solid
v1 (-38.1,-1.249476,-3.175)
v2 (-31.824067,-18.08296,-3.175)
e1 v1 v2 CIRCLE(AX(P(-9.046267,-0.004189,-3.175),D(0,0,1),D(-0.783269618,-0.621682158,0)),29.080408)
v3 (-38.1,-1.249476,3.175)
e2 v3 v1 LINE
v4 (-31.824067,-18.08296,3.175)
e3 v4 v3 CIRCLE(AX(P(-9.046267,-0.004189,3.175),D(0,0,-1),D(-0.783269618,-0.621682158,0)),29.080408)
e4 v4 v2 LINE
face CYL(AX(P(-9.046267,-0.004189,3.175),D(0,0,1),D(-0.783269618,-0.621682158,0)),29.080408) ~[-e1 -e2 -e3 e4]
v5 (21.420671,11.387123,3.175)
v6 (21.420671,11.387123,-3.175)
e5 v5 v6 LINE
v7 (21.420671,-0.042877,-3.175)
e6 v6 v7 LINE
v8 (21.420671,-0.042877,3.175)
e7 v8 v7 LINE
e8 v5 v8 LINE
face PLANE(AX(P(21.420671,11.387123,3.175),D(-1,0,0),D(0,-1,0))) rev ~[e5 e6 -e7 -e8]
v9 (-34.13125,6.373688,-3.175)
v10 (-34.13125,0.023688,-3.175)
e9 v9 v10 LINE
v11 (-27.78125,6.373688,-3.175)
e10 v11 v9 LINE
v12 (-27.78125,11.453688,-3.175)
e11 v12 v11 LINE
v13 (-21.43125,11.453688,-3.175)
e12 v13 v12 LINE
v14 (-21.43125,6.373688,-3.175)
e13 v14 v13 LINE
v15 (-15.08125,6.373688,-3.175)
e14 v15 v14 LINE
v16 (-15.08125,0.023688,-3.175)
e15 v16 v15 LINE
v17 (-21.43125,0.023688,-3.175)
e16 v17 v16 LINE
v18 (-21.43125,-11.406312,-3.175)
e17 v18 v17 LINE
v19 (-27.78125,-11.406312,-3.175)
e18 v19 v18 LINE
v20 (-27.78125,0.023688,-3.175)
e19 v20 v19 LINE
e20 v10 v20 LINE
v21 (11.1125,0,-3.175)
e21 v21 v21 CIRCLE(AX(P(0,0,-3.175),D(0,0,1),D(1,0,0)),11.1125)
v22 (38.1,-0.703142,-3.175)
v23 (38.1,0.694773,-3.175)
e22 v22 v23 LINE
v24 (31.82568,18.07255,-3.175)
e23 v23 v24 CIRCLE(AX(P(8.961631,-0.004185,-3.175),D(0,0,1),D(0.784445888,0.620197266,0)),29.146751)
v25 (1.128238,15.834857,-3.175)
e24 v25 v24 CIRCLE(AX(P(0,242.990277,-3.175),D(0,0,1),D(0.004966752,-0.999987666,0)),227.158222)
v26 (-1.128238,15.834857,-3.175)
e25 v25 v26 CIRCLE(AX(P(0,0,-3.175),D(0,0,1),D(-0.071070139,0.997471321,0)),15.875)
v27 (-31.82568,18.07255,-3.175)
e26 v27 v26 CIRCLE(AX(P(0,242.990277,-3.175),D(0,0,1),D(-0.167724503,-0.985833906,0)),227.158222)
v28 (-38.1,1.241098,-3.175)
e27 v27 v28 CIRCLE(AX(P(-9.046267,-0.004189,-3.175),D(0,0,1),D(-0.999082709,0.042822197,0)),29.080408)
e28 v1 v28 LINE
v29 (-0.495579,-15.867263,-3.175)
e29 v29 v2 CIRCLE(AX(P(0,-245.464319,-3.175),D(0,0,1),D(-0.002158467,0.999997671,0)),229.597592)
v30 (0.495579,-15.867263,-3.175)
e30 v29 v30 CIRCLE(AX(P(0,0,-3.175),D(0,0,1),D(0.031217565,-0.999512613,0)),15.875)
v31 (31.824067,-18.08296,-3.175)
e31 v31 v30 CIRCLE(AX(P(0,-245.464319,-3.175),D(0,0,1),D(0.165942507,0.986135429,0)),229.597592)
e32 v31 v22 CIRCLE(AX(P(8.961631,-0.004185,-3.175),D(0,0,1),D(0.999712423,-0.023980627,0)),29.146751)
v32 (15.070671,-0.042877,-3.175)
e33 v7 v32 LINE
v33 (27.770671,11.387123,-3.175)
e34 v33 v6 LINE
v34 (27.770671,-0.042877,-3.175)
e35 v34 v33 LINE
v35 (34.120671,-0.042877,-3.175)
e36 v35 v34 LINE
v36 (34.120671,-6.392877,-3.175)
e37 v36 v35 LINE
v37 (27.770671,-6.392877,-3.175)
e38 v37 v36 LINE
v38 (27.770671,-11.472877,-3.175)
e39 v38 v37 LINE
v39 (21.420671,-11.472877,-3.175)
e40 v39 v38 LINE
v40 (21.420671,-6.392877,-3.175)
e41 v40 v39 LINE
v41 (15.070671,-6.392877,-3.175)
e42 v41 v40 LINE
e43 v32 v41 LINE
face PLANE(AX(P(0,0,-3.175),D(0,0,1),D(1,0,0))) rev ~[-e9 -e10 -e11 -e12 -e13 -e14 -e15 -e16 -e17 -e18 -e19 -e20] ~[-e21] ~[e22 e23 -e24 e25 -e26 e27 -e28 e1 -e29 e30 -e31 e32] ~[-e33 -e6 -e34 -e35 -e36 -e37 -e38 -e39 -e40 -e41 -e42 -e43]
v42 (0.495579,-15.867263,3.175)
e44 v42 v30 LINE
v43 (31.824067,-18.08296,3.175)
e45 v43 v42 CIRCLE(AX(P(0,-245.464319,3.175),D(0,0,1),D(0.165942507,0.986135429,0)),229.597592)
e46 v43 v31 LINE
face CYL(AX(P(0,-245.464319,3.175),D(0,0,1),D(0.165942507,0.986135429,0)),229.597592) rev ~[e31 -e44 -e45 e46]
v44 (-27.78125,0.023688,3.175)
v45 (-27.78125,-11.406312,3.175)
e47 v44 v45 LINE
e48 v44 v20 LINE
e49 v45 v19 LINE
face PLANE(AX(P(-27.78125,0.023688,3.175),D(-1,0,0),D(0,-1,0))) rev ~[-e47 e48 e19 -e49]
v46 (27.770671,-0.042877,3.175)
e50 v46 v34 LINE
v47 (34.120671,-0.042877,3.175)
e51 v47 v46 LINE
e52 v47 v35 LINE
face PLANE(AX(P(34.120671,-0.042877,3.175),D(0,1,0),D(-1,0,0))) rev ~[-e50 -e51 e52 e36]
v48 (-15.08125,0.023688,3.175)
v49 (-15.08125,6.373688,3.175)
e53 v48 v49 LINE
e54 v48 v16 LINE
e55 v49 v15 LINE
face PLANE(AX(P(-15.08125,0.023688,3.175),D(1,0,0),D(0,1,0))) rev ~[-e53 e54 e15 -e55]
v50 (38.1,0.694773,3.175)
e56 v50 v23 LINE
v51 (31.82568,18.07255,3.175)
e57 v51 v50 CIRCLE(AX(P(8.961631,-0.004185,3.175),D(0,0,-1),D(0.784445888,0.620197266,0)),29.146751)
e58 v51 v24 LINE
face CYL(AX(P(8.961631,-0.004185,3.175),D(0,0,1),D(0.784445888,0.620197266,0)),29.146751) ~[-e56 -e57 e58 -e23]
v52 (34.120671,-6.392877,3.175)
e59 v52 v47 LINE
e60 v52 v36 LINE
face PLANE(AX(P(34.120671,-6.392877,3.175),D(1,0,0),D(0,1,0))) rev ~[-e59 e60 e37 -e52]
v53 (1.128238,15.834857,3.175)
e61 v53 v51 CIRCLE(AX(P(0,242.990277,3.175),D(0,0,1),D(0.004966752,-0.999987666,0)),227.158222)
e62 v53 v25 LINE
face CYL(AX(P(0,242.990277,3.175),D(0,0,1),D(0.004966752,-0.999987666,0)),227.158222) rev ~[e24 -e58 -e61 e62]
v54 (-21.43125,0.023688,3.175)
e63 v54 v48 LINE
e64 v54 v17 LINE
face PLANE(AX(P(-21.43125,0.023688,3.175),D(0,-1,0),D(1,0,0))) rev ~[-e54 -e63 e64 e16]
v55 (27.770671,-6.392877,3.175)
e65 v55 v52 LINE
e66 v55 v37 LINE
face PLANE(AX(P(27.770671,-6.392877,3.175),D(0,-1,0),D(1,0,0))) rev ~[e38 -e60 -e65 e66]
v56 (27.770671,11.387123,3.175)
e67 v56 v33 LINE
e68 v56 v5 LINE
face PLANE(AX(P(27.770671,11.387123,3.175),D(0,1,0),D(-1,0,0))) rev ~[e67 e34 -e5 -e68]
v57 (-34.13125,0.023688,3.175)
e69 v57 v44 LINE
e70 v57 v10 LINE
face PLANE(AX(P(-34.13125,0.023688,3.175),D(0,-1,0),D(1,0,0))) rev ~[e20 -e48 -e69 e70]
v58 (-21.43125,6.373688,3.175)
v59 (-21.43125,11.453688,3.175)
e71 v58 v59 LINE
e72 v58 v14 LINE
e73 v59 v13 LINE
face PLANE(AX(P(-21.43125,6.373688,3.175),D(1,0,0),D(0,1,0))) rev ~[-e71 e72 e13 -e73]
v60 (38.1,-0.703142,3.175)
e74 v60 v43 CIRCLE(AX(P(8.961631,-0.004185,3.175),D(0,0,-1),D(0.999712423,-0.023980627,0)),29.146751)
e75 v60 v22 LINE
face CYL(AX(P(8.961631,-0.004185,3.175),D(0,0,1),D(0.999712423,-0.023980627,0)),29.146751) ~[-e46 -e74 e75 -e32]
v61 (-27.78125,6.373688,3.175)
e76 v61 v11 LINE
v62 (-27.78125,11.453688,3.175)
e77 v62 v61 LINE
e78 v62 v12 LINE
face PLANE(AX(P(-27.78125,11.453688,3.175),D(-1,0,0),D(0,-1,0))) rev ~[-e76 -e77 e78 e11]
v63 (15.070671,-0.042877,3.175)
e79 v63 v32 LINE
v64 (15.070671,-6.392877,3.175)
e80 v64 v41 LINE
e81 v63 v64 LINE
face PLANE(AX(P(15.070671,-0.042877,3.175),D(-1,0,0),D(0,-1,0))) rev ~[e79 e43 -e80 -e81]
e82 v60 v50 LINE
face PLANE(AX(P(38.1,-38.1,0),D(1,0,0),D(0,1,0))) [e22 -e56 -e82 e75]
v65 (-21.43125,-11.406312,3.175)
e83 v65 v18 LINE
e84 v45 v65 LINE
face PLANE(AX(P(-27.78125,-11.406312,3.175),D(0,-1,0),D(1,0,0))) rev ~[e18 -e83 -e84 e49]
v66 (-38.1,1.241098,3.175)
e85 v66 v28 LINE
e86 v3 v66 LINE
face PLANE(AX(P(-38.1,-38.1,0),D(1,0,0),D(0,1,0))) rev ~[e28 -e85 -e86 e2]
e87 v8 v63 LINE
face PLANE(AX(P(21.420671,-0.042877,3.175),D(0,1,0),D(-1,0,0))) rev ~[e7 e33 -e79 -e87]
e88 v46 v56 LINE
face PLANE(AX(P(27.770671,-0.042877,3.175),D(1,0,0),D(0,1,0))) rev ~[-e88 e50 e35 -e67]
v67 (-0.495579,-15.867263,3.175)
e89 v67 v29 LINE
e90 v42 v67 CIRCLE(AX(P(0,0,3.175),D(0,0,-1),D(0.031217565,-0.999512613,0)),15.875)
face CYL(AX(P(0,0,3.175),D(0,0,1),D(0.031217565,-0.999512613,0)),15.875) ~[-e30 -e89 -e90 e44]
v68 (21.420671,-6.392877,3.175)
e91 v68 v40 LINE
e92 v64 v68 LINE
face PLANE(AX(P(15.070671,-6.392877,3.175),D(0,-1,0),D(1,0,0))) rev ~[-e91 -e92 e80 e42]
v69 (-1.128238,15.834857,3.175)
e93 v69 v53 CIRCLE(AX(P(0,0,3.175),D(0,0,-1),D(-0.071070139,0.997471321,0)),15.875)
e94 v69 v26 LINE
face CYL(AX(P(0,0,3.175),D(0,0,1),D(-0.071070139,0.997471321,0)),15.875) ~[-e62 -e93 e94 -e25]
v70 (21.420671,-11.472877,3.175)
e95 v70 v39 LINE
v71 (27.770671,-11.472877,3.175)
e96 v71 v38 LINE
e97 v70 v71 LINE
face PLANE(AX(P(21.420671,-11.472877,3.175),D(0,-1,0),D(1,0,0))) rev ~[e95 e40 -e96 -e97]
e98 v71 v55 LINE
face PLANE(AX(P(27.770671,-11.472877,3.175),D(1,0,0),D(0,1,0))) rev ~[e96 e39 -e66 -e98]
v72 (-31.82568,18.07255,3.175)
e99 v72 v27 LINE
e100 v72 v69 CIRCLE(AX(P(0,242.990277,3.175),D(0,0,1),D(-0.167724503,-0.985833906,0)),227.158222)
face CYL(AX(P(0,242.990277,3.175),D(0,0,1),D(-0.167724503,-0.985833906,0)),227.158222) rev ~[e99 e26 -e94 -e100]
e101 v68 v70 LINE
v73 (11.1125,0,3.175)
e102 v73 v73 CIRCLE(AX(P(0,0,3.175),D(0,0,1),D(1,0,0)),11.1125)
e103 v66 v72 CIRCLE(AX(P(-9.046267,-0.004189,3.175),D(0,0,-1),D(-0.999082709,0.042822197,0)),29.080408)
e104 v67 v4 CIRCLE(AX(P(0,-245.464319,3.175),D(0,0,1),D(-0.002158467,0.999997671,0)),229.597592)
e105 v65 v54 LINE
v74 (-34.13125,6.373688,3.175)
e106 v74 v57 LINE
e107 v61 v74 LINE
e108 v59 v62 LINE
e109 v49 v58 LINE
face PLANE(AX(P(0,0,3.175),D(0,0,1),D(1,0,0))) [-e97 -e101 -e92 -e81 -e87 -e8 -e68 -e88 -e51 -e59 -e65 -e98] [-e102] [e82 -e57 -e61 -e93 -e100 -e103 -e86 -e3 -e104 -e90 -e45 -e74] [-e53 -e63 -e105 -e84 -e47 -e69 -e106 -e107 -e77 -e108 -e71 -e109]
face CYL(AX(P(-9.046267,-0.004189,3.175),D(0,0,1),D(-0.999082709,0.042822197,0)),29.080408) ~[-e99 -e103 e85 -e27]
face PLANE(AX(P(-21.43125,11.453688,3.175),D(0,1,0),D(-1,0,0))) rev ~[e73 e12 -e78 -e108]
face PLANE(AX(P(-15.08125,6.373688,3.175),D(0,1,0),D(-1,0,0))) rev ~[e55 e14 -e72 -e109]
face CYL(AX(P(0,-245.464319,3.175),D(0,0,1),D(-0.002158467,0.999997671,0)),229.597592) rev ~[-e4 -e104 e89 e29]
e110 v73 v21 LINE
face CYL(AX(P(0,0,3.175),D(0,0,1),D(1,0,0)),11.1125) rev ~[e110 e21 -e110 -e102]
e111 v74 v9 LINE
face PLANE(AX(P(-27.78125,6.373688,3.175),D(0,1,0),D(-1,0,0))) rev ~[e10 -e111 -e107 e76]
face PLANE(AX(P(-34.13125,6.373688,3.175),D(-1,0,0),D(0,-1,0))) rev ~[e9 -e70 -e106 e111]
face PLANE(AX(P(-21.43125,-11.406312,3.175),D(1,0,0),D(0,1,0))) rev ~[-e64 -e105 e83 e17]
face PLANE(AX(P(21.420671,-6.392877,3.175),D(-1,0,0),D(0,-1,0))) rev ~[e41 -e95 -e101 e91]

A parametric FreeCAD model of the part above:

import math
import FreeCAD as App
import Part
import Sketcher
Q = App.Units.Quantity

doc = App.newDocument("Part")
body = doc.addObject("PartDesign::Body", "Body")

sketch1 = body.newObject("Sketcher::SketchObject", "Sketch")
sketch1.AttachmentSupport = (doc.getObject("XY_Plane"), [""])
sketch1.MapMode = "FlatFace"
sketch1.addGeometry(Part.LineSegment(App.Vector(-38, 38, 0), App.Vector(-38, -38, 0)), False)
sketch1.addGeometry(Part.LineSegment(App.Vector(-38, -38, 0), App.Vector(38, -38, 0)), False)
sketch1.addGeometry(Part.LineSegment(App.Vector(38, -38, 0), App.Vector(38, 38, 0)), False)
sketch1.addGeometry(Part.LineSegment(App.Vector(38, 38, 0), App.Vector(-38, 38, 0)), False)
sketch1.addConstraint(Sketcher.Constraint("Coincident", 0, 2, 1, 1))
sketch1.addConstraint(Sketcher.Constraint("Coincident", 1, 2, 2, 1))
sketch1.addConstraint(Sketcher.Constraint("Coincident", 2, 2, 3, 1))
sketch1.addConstraint(Sketcher.Constraint("Coincident", 3, 2, 0, 1))
sketch1.addConstraint(Sketcher.Constraint("Vertical", 0))
sketch1.addConstraint(Sketcher.Constraint("Horizontal", 1))
sketch1.addConstraint(Sketcher.Constraint("Vertical", 2))
sketch1.addConstraint(Sketcher.Constraint("Horizontal", 3))
sketch1.addConstraint(Sketcher.Constraint("Symmetric", 0, 2, 2, 2, -1, 1))
sketch1.addConstraint(Sketcher.Constraint("Equal", 3, 0))
sketch1.addConstraint(Sketcher.Constraint("DistanceX", 1, 1, 1, 2, Q("3 in")))
pad1 = body.newObject("PartDesign::Pad", "Pad")
pad1.Profile = sketch1
pad1.Type = "TwoLengths"
pad1.Length = Q("0.125 in")
pad1.Length2 = Q("0.125 in")

sketch2 = body.newObject("Sketcher::SketchObject", "Sketch001")
sketch2.AttachmentSupport = (doc.getObject("XY_Plane"), [""])
sketch2.MapMode = "FlatFace"
sketch2.AttachmentOffset = App.Placement(App.Vector(0, 0, 0.125 * 25.4), App.Rotation())
sketch2.addGeometry(Part.Circle(App.Vector(0, 0, 0), App.Vector(0, 0, 1), 11), False)
sketch2.addConstraint(Sketcher.Constraint("Coincident", 0, 3, -1, 1))
sketch2.addConstraint(Sketcher.Constraint("Diameter", 0, Q("0.875 in")))
pocket1 = body.newObject("PartDesign::Pocket", "Pocket")
pocket1.Profile = sketch2
pocket1.Length = Q("1 in")

sketch3 = body.newObject("Sketcher::SketchObject", "Sketch002")
sketch3.AttachmentSupport = (doc.getObject("XY_Plane"), [""])
sketch3.MapMode = "FlatFace"
sketch3.AttachmentOffset = App.Placement(App.Vector(0, 0, 0.125 * 25.4), App.Rotation())
sketch3.addGeometry(Part.ArcOfCircle(Part.Circle(App.Vector(0, 0, 0), App.Vector(0, 0, 1), 15.9), math.radians(85.92), math.radians(94.08)), False)
sketch3.addGeometry(Part.ArcOfCircle(Part.Circle(App.Vector(0, 243, 0), App.Vector(0, 0, 1), 227.2), math.radians(-89.72), math.radians(-80.34)), False)
sketch3.addGeometry(Part.LineSegment(App.Vector(38.1, 19.1, 0), App.Vector(38.1, 38.1, 0)), False)
sketch3.addGeometry(Part.LineSegment(App.Vector(38.1, 38.1, 0), App.Vector(-38.1, 38.1, 0)), False)
sketch3.addGeometry(Part.LineSegment(App.Vector(-38.1, 38.1, 0), App.Vector(-38.1, 19.1, 0)), False)
sketch3.addGeometry(Part.ArcOfCircle(Part.Circle(App.Vector(0, 243, 0), App.Vector(0, 0, 1), 227.2), math.radians(-99.66), math.radians(-90.28)), False)
sketch3.addGeometry(Part.ArcOfCircle(Part.Circle(App.Vector(0, -245.5, 0), App.Vector(0, 0, 1), 229.6), math.radians(80.45), math.radians(89.88)), False)
sketch3.addGeometry(Part.ArcOfCircle(Part.Circle(App.Vector(0, 0, 0), App.Vector(0, 0, 1), 15.9), math.radians(-91.79), math.radians(-88.21)), False)
sketch3.addGeometry(Part.ArcOfCircle(Part.Circle(App.Vector(0, -245.5, 0), App.Vector(0, 0, 1), 229.6), math.radians(90.12), math.radians(99.55)), False)
sketch3.addGeometry(Part.LineSegment(App.Vector(-38.1, -19.1, 0), App.Vector(-38.1, -38.1, 0)), False)
sketch3.addGeometry(Part.LineSegment(App.Vector(-38.1, -38.1, 0), App.Vector(38.1, -38.1, 0)), False)
sketch3.addGeometry(Part.LineSegment(App.Vector(38.1, -38.1, 0), App.Vector(38.1, -19.1, 0)), False)
sketch3.addConstraint(Sketcher.Constraint("Coincident", 0, 1, 1, 1))
sketch3.addConstraint(Sketcher.Constraint("Coincident", 1, 2, 2, 1))
sketch3.addConstraint(Sketcher.Constraint("Coincident", 2, 2, 3, 1))
sketch3.addConstraint(Sketcher.Constraint("Coincident", 3, 2, 4, 1))
sketch3.addConstraint(Sketcher.Constraint("Coincident", 4, 2, 5, 1))
sketch3.addConstraint(Sketcher.Constraint("Coincident", 5, 2, 0, 2))
sketch3.addConstraint(Sketcher.Constraint("Coincident", 6, 2, 7, 2))
sketch3.addConstraint(Sketcher.Constraint("Coincident", 7, 1, 8, 1))
sketch3.addConstraint(Sketcher.Constraint("Coincident", 8, 2, 9, 1))
sketch3.addConstraint(Sketcher.Constraint("Coincident", 9, 2, 10, 1))
sketch3.addConstraint(Sketcher.Constraint("Coincident", 10, 2, 11, 1))
sketch3.addConstraint(Sketcher.Constraint("Coincident", 11, 2, 6, 1))
sketch3.addConstraint(Sketcher.Constraint("Vertical", 2))
sketch3.addConstraint(Sketcher.Constraint("Horizontal", 3))
sketch3.addConstraint(Sketcher.Constraint("Vertical", 4))
sketch3.addConstraint(Sketcher.Constraint("Vertical", 9))
sketch3.addConstraint(Sketcher.Constraint("Horizontal", 10))
sketch3.addConstraint(Sketcher.Constraint("Vertical", 11))
sketch3.addConstraint(Sketcher.Constraint("Coincident", 0, 3, -1, 1))
sketch3.addConstraint(Sketcher.Constraint("Coincident", 7, 3, -1, 1))
sketch3.addConstraint(Sketcher.Constraint("Coincident", 5, 3, 1, 3))
sketch3.addConstraint(Sketcher.Constraint("Coincident", 8, 3, 6, 3))
sketch3.addConstraint(Sketcher.Constraint("Equal", 1, 5))
sketch3.addConstraint(Sketcher.Constraint("Equal", 0, 7))
sketch3.addConstraint(Sketcher.Constraint("Equal", 6, 8))
sketch3.addConstraint(Sketcher.Constraint("Symmetric", 1, 2, 8, 2, -1, 1))
sketch3.addConstraint(Sketcher.Constraint("Symmetric", 3, 2, 10, 2, -1, 1))
sketch3.addConstraint(Sketcher.Constraint("Symmetric", 1, 2, 4, 2, -2))
sketch3.addConstraint(Sketcher.Constraint("PointOnObject", 6, 3, -2))
sketch3.addConstraint(Sketcher.Constraint("DistanceX", 3, 2, 3, 1, Q("3 in")))
sketch3.addConstraint(Sketcher.Constraint("Radius", 0, Q("0.625 in")))
sketch3.addConstraint(Sketcher.Constraint("DistanceY", 2, 1, 2, 2, Q("0.75 in")))
sketch3.addConstraint(Sketcher.Constraint("DistanceY", -1, 1, 2, 2, Q("1.5 in")))
sketch3.addConstraint(Sketcher.Constraint("Radius", 6, Q("229.597592 mm")))
sketch3.addConstraint(Sketcher.Constraint("Radius", 1, Q("227.158222 mm")))
pocket2 = body.newObject("PartDesign::Pocket", "Pocket001")
pocket2.Profile = sketch3
pocket2.Length = Q("1 in")

sketch4 = body.newObject("Sketcher::SketchObject", "Sketch003")
sketch4.AttachmentSupport = (doc.getObject("XY_Plane"), [""])
sketch4.MapMode = "FlatFace"
sketch4.AttachmentOffset = App.Placement(App.Vector(0, 0, 0.125 * 25.4), App.Rotation())
sketch4.addGeometry(Part.ArcOfCircle(Part.Circle(App.Vector(-9, 0, 0), App.Vector(0, 0, 1), 29), math.radians(-178), math.radians(-142)), False)
sketch4.addGeometry(Part.LineSegment(App.Vector(-38, -1, 0), App.Vector(-38, -19, 0)), False)
sketch4.addGeometry(Part.ArcOfCircle(Part.Circle(App.Vector(0, -245, 0), App.Vector(0, 0, 1), 230), math.radians(97.97), math.radians(99.55)), False)
sketch4.addGeometry(Part.LineSegment(App.Vector(38, -19, 0), App.Vector(38, -1, 0)), False)
sketch4.addGeometry(Part.ArcOfCircle(Part.Circle(App.Vector(9, 0, 0), App.Vector(0, 0, 1), 29), math.radians(-38), math.radians(-1)), False)
sketch4.addGeometry(Part.ArcOfCircle(Part.Circle(App.Vector(0, -245, 0), App.Vector(0, 0, 1), 230), math.radians(80.45), math.radians(82.03)), False)
sketch4.addGeometry(Part.LineSegment(App.Vector(38, 1, 0), App.Vector(38, 19, 0)), False)
sketch4.addGeometry(Part.ArcOfCircle(Part.Circle(App.Vector(0, 243, 0), App.Vector(0, 0, 1), 227), math.radians(-81.95), math.radians(-80.34)), False)
sketch4.addGeometry(Part.ArcOfCircle(Part.Circle(App.Vector(9, 0, 0), App.Vector(0, 0, 1), 29), math.radians(1), math.radians(38)), False)
sketch4.addGeometry(Part.ArcOfCircle(Part.Circle(App.Vector(-9, 0, 0), App.Vector(0, 0, 1), 29), math.radians(142), math.radians(178)), False)
sketch4.addGeometry(Part.ArcOfCircle(Part.Circle(App.Vector(0, 243, 0), App.Vector(0, 0, 1), 227), math.radians(-99.66), math.radians(-98.05)), False)
sketch4.addGeometry(Part.LineSegment(App.Vector(-38, 19, 0), App.Vector(-38, 1, 0)), False)
sketch4.addConstraint(Sketcher.Constraint("Coincident", 0, 1, 1, 1))
sketch4.addConstraint(Sketcher.Constraint("Coincident", 1, 2, 2, 2))
sketch4.addConstraint(Sketcher.Constraint("Coincident", 2, 1, 0, 2))
sketch4.addConstraint(Sketcher.Constraint("Coincident", 3, 2, 4, 2))
sketch4.addConstraint(Sketcher.Constraint("Coincident", 4, 1, 5, 2))
sketch4.addConstraint(Sketcher.Constraint("Coincident", 5, 1, 3, 1))
sketch4.addConstraint(Sketcher.Constraint("Coincident", 6, 2, 7, 2))
sketch4.addConstraint(Sketcher.Constraint("Coincident", 7, 1, 8, 2))
sketch4.addConstraint(Sketcher.Constraint("Coincident", 8, 1, 6, 1))
sketch4.addConstraint(Sketcher.Constraint("Coincident", 9, 1, 10, 2))
sketch4.addConstraint(Sketcher.Constraint("Coincident", 10, 1, 11, 1))
sketch4.addConstraint(Sketcher.Constraint("Coincident", 11, 2, 9, 2))
sketch4.addConstraint(Sketcher.Constraint("Vertical", 1))
sketch4.addConstraint(Sketcher.Constraint("Vertical", 3))
sketch4.addConstraint(Sketcher.Constraint("Vertical", 6))
sketch4.addConstraint(Sketcher.Constraint("Vertical", 11))
sketch4.addConstraint(Sketcher.Constraint("Coincident", 5, 3, 2, 3))
sketch4.addConstraint(Sketcher.Constraint("Coincident", 8, 3, 4, 3))
sketch4.addConstraint(Sketcher.Constraint("Coincident", 9, 3, 0, 3))
sketch4.addConstraint(Sketcher.Constraint("Coincident", 10, 3, 7, 3))
sketch4.addConstraint(Sketcher.Constraint("Equal", 2, 5))
sketch4.addConstraint(Sketcher.Constraint("Equal", 4, 8))
sketch4.addConstraint(Sketcher.Constraint("Equal", 0, 9))
sketch4.addConstraint(Sketcher.Constraint("Equal", 7, 10))
sketch4.addConstraint(Sketcher.Constraint("Symmetric", 1, 2, 6, 2, -1, 1))
sketch4.addConstraint(Sketcher.Constraint("Symmetric", 2, 1, 4, 1, -2))
sketch4.addConstraint(Sketcher.Constraint("PointOnObject", 7, 3, -2))
sketch4.addConstraint(Sketcher.Constraint("DistanceX", 0, 1, -1, 1, Q("1.5 in")))
sketch4.addConstraint(Sketcher.Constraint("DistanceX", -1, 1, 3, 2, Q("1.5 in")))
sketch4.addConstraint(Sketcher.Constraint("DistanceX", 11, 2, -1, 1, Q("1.5 in")))
sketch4.addConstraint(Sketcher.Constraint("DistanceY", 5, 1, 6, 2, Q("1.5 in")))
sketch4.addConstraint(Sketcher.Constraint("Radius", 0, Q("29.080408 mm")))
sketch4.addConstraint(Sketcher.Constraint("Radius", 2, Q("229.597591 mm")))
sketch4.addConstraint(Sketcher.Constraint("Radius", 4, Q("29.146751 mm")))
sketch4.addConstraint(Sketcher.Constraint("Radius", 7, Q("227.158221 mm")))
sketch4.addConstraint(Sketcher.Constraint("DistanceY", 11, 2, 11, 1, Q("17.808902 mm")))
sketch4.addConstraint(Sketcher.Constraint("DistanceY", 1, 2, 1, 1, Q("17.800524 mm")))
sketch4.addConstraint(Sketcher.Constraint("DistanceY", 3, 1, 3, 2, Q("18.346858 mm")))
pocket3 = body.newObject("PartDesign::Pocket", "Pocket002")
pocket3.Profile = sketch4
pocket3.Length = Q("1 in")

sketch5 = body.newObject("Sketcher::SketchObject", "Sketch004")
sketch5.AttachmentSupport = (doc.getObject("XY_Plane"), [""])
sketch5.MapMode = "FlatFace"
sketch5.AttachmentOffset = App.Placement(App.Vector(0, 0, 0.125 * 25.4), App.Rotation())
sketch5.addGeometry(Part.LineSegment(App.Vector(-21, 11, 0), App.Vector(-28, 11, 0)), False)
sketch5.addGeometry(Part.LineSegment(App.Vector(-28, 11, 0), App.Vector(-28, 6, 0)), False)
sketch5.addGeometry(Part.LineSegment(App.Vector(-28, 6, 0), App.Vector(-34, 6, 0)), False)
sketch5.addGeometry(Part.LineSegment(App.Vector(-34, 6, 0), App.Vector(-34, 0, 0)), False)
sketch5.addGeometry(Part.LineSegment(App.Vector(-34, 0, 0), App.Vector(-28, 0, 0)), False)
sketch5.addGeometry(Part.LineSegment(App.Vector(-28, 0, 0), App.Vector(-28, -11, 0)), False)
sketch5.addGeometry(Part.LineSegment(App.Vector(-28, -11, 0), App.Vector(-21, -11, 0)), False)
sketch5.addGeometry(Part.LineSegment(App.Vector(-21, -11, 0), App.Vector(-21, 0, 0)), False)
sketch5.addGeometry(Part.LineSegment(App.Vector(-21, 0, 0), App.Vector(-15, 0, 0)), False)
sketch5.addGeometry(Part.LineSegment(App.Vector(-15, 0, 0), App.Vector(-15, 6, 0)), False)
sketch5.addGeometry(Part.LineSegment(App.Vector(-15, 6, 0), App.Vector(-21, 6, 0)), False)
sketch5.addGeometry(Part.LineSegment(App.Vector(-21, 6, 0), App.Vector(-21, 11, 0)), False)
sketch5.addGeometry(Part.LineSegment(App.Vector(21, -11, 0), App.Vector(28, -11, 0)), False)
sketch5.addGeometry(Part.LineSegment(App.Vector(28, -11, 0), App.Vector(28, -6, 0)), False)
sketch5.addGeometry(Part.LineSegment(App.Vector(28, -6, 0), App.Vector(34, -6, 0)), False)
sketch5.addGeometry(Part.LineSegment(App.Vector(34, -6, 0), App.Vector(34, 0, 0)), False)
sketch5.addGeometry(Part.LineSegment(App.Vector(34, 0, 0), App.Vector(28, 0, 0)), False)
sketch5.addGeometry(Part.LineSegment(App.Vector(28, 0, 0), App.Vector(28, 11, 0)), False)
sketch5.addGeometry(Part.LineSegment(App.Vector(28, 11, 0), App.Vector(21, 11, 0)), False)
sketch5.addGeometry(Part.LineSegment(App.Vector(21, 11, 0), App.Vector(21, 0, 0)), False)
sketch5.addGeometry(Part.LineSegment(App.Vector(21, 0, 0), App.Vector(15, 0, 0)), False)
sketch5.addGeometry(Part.LineSegment(App.Vector(15, 0, 0), App.Vector(15, -6, 0)), False)
sketch5.addGeometry(Part.LineSegment(App.Vector(15, -6, 0), App.Vector(21, -6, 0)), False)
sketch5.addGeometry(Part.LineSegment(App.Vector(21, -6, 0), App.Vector(21, -11, 0)), False)
sketch5.addConstraint(Sketcher.Constraint("Coincident", 0, 2, 1, 1))
sketch5.addConstraint(Sketcher.Constraint("Coincident", 1, 2, 2, 1))
sketch5.addConstraint(Sketcher.Constraint("Coincident", 2, 2, 3, 1))
sketch5.addConstraint(Sketcher.Constraint("Coincident", 3, 2, 4, 1))
sketch5.addConstraint(Sketcher.Constraint("Coincident", 4, 2, 5, 1))
sketch5.addConstraint(Sketcher.Constraint("Coincident", 5, 2, 6, 1))
sketch5.addConstraint(Sketcher.Constraint("Coincident", 6, 2, 7, 1))
sketch5.addConstraint(Sketcher.Constraint("Coincident", 7, 2, 8, 1))
sketch5.addConstraint(Sketcher.Constraint("Coincident", 8, 2, 9, 1))
sketch5.addConstraint(Sketcher.Constraint("Coincident", 9, 2, 10, 1))
sketch5.addConstraint(Sketcher.Constraint("Coincident", 10, 2, 11, 1))
sketch5.addConstraint(Sketcher.Constraint("Coincident", 11, 2, 0, 1))
sketch5.addConstraint(Sketcher.Constraint("Coincident", 12, 2, 13, 1))
sketch5.addConstraint(Sketcher.Constraint("Coincident", 13, 2, 14, 1))
sketch5.addConstraint(Sketcher.Constraint("Coincident", 14, 2, 15, 1))
sketch5.addConstraint(Sketcher.Constraint("Coincident", 15, 2, 16, 1))
sketch5.addConstraint(Sketcher.Constraint("Coincident", 16, 2, 17, 1))
sketch5.addConstraint(Sketcher.Constraint("Coincident", 17, 2, 18, 1))
sketch5.addConstraint(Sketcher.Constraint("Coincident", 18, 2, 19, 1))
sketch5.addConstraint(Sketcher.Constraint("Coincident", 19, 2, 20, 1))
sketch5.addConstraint(Sketcher.Constraint("Coincident", 20, 2, 21, 1))
sketch5.addConstraint(Sketcher.Constraint("Coincident", 21, 2, 22, 1))
sketch5.addConstraint(Sketcher.Constraint("Coincident", 22, 2, 23, 1))
sketch5.addConstraint(Sketcher.Constraint("Coincident", 23, 2, 12, 1))
sketch5.addConstraint(Sketcher.Constraint("Horizontal", 0))
sketch5.addConstraint(Sketcher.Constraint("Vertical", 1))
sketch5.addConstraint(Sketcher.Constraint("Horizontal", 2))
sketch5.addConstraint(Sketcher.Constraint("Vertical", 3))
sketch5.addConstraint(Sketcher.Constraint("Horizontal", 4))
sketch5.addConstraint(Sketcher.Constraint("Vertical", 5))
sketch5.addConstraint(Sketcher.Constraint("Horizontal", 6))
sketch5.addConstraint(Sketcher.Constraint("Vertical", 7))
sketch5.addConstraint(Sketcher.Constraint("Horizontal", 8))
sketch5.addConstraint(Sketcher.Constraint("Vertical", 9))
sketch5.addConstraint(Sketcher.Constraint("Horizontal", 10))
sketch5.addConstraint(Sketcher.Constraint("Vertical", 11))
sketch5.addConstraint(Sketcher.Constraint("Horizontal", 12))
sketch5.addConstraint(Sketcher.Constraint("Vertical", 13))
sketch5.addConstraint(Sketcher.Constraint("Horizontal", 14))
sketch5.addConstraint(Sketcher.Constraint("Vertical", 15))
sketch5.addConstraint(Sketcher.Constraint("Horizontal", 16))
sketch5.addConstraint(Sketcher.Constraint("Vertical", 17))
sketch5.addConstraint(Sketcher.Constraint("Horizontal", 18))
sketch5.addConstraint(Sketcher.Constraint("Vertical", 19))
sketch5.addConstraint(Sketcher.Constraint("Horizontal", 20))
sketch5.addConstraint(Sketcher.Constraint("Vertical", 21))
sketch5.addConstraint(Sketcher.Constraint("Horizontal", 22))
sketch5.addConstraint(Sketcher.Constraint("Vertical", 23))
sketch5.addConstraint(Sketcher.Constraint("Horizontal", 4, 2, 7, 2))
sketch5.addConstraint(Sketcher.Constraint("Horizontal", 2, 2, 9, 2))
sketch5.addConstraint(Sketcher.Constraint("Horizontal", 16, 2, 19, 2))
sketch5.addConstraint(Sketcher.Constraint("Horizontal", 14, 2, 21, 2))
sketch5.addConstraint(Sketcher.Constraint("Vertical", 1, 2, 4, 2))
sketch5.addConstraint(Sketcher.Constraint("Vertical", 7, 2, 10, 2))
sketch5.addConstraint(Sketcher.Constraint("Vertical", 13, 2, 16, 2))
sketch5.addConstraint(Sketcher.Constraint("Vertical", 19, 2, 22, 2))
sketch5.addConstraint(Sketcher.Constraint("Equal", 0, 2))
sketch5.addConstraint(Sketcher.Constraint("Equal", 6, 8))
sketch5.addConstraint(Sketcher.Constraint("Equal", 10, 12))
sketch5.addConstraint(Sketcher.Constraint("Equal", 12, 14))
sketch5.addConstraint(Sketcher.Constraint("Equal", 18, 20))
sketch5.addConstraint(Sketcher.Constraint("Equal", 22, 3))
sketch5.addConstraint(Sketcher.Constraint("Equal", 11, 13))
sketch5.addConstraint(Sketcher.Constraint("Equal", 9, 15))
sketch5.addConstraint(Sketcher.Constraint("Equal", 7, 17))
sketch5.addConstraint(Sketcher.Constraint("DistanceY", 1, 2, 1, 1, Q("0.2 in")))
sketch5.addConstraint(Sketcher.Constraint("DistanceX", 0, 2, 0, 1, Q("0.25 in")))
sketch5.addConstraint(Sketcher.Constraint("DistanceY", 5, 2, 5, 1, Q("0.45 in")))
sketch5.addConstraint(Sketcher.Constraint("DistanceX", 0, 2, -1, 1, Q("1.09375 in")))
sketch5.addConstraint(Sketcher.Constraint("DistanceX", -1, 1, 12, 2, Q("27.770671 mm")))
sketch5.addConstraint(Sketcher.Constraint("DistanceY", -1, 1, 0, 2, Q("11.453688 mm")))
sketch5.addConstraint(Sketcher.Constraint("DistanceY", 12, 2, -1, 1, Q("11.472877 mm")))
pocket4 = body.newObject("PartDesign::Pocket", "Pocket003")
pocket4.Profile = sketch5
pocket4.Length = Q("1 in")

sketch6 = body.newObject("Sketcher::SketchObject", "Sketch005")
sketch6.AttachmentSupport = (doc.getObject("XY_Plane"), [""])
sketch6.MapMode = "FlatFace"
sketch6.AttachmentOffset = App.Placement(App.Vector(0, 0, 0.125 * 25.4), App.Rotation())
sketch6.addGeometry(Part.LineSegment(App.Vector(-21, 11, 0), App.Vector(-28, 11, 0)), False)
sketch6.addGeometry(Part.LineSegment(App.Vector(-28, 11, 0), App.Vector(-28, 6, 0)), False)
sketch6.addGeometry(Part.LineSegment(App.Vector(-28, 6, 0), App.Vector(-34, 6, 0)), False)
sketch6.addGeometry(Part.LineSegment(App.Vector(-34, 6, 0), App.Vector(-34, 0, 0)), False)
sketch6.addGeometry(Part.LineSegment(App.Vector(-34, 0, 0), App.Vector(-28, 0, 0)), False)
sketch6.addGeometry(Part.LineSegment(App.Vector(-28, 0, 0), App.Vector(-28, -11, 0)), False)
sketch6.addGeometry(Part.LineSegment(App.Vector(-28, -11, 0), App.Vector(-21, -11, 0)), False)
sketch6.addGeometry(Part.LineSegment(App.Vector(-21, -11, 0), App.Vector(-21, 0, 0)), False)
sketch6.addGeometry(Part.LineSegment(App.Vector(-21, 0, 0), App.Vector(-15, 0, 0)), False)
sketch6.addGeometry(Part.LineSegment(App.Vector(-15, 0, 0), App.Vector(-15, 6, 0)), False)
sketch6.addGeometry(Part.LineSegment(App.Vector(-15, 6, 0), App.Vector(-21, 6, 0)), False)
sketch6.addGeometry(Part.LineSegment(App.Vector(-21, 6, 0), App.Vector(-21, 11, 0)), False)
sketch6.addGeometry(Part.LineSegment(App.Vector(21, -11, 0), App.Vector(28, -11, 0)), False)
sketch6.addGeometry(Part.LineSegment(App.Vector(28, -11, 0), App.Vector(28, -6, 0)), False)
sketch6.addGeometry(Part.LineSegment(App.Vector(28, -6, 0), App.Vector(34, -6, 0)), False)
sketch6.addGeometry(Part.LineSegment(App.Vector(34, -6, 0), App.Vector(34, 0, 0)), False)
sketch6.addGeometry(Part.LineSegment(App.Vector(34, 0, 0), App.Vector(28, 0, 0)), False)
sketch6.addGeometry(Part.LineSegment(App.Vector(28, 0, 0), App.Vector(28, 11, 0)), False)
sketch6.addGeometry(Part.LineSegment(App.Vector(28, 11, 0), App.Vector(21, 11, 0)), False)
sketch6.addGeometry(Part.LineSegment(App.Vector(21, 11, 0), App.Vector(21, 0, 0)), False)
sketch6.addGeometry(Part.LineSegment(App.Vector(21, 0, 0), App.Vector(15, 0, 0)), False)
sketch6.addGeometry(Part.LineSegment(App.Vector(15, 0, 0), App.Vector(15, -6, 0)), False)
sketch6.addGeometry(Part.LineSegment(App.Vector(15, -6, 0), App.Vector(21, -6, 0)), False)
sketch6.addGeometry(Part.LineSegment(App.Vector(21, -6, 0), App.Vector(21, -11, 0)), False)
sketch6.addConstraint(Sketcher.Constraint("Coincident", 0, 2, 1, 1))
sketch6.addConstraint(Sketcher.Constraint("Coincident", 1, 2, 2, 1))
sketch6.addConstraint(Sketcher.Constraint("Coincident", 2, 2, 3, 1))
sketch6.addConstraint(Sketcher.Constraint("Coincident", 3, 2, 4, 1))
sketch6.addConstraint(Sketcher.Constraint("Coincident", 4, 2, 5, 1))
sketch6.addConstraint(Sketcher.Constraint("Coincident", 5, 2, 6, 1))
sketch6.addConstraint(Sketcher.Constraint("Coincident", 6, 2, 7, 1))
sketch6.addConstraint(Sketcher.Constraint("Coincident", 7, 2, 8, 1))
sketch6.addConstraint(Sketcher.Constraint("Coincident", 8, 2, 9, 1))
sketch6.addConstraint(Sketcher.Constraint("Coincident", 9, 2, 10, 1))
sketch6.addConstraint(Sketcher.Constraint("Coincident", 10, 2, 11, 1))
sketch6.addConstraint(Sketcher.Constraint("Coincident", 11, 2, 0, 1))
sketch6.addConstraint(Sketcher.Constraint("Coincident", 12, 2, 13, 1))
sketch6.addConstraint(Sketcher.Constraint("Coincident", 13, 2, 14, 1))
sketch6.addConstraint(Sketcher.Constraint("Coincident", 14, 2, 15, 1))
sketch6.addConstraint(Sketcher.Constraint("Coincident", 15, 2, 16, 1))
sketch6.addConstraint(Sketcher.Constraint("Coincident", 16, 2, 17, 1))
sketch6.addConstraint(Sketcher.Constraint("Coincident", 17, 2, 18, 1))
sketch6.addConstraint(Sketcher.Constraint("Coincident", 18, 2, 19, 1))
sketch6.addConstraint(Sketcher.Constraint("Coincident", 19, 2, 20, 1))
sketch6.addConstraint(Sketcher.Constraint("Coincident", 20, 2, 21, 1))
sketch6.addConstraint(Sketcher.Constraint("Coincident", 21, 2, 22, 1))
sketch6.addConstraint(Sketcher.Constraint("Coincident", 22, 2, 23, 1))
sketch6.addConstraint(Sketcher.Constraint("Coincident", 23, 2, 12, 1))
sketch6.addConstraint(Sketcher.Constraint("Horizontal", 0))
sketch6.addConstraint(Sketcher.Constraint("Vertical", 1))
sketch6.addConstraint(Sketcher.Constraint("Horizontal", 2))
sketch6.addConstraint(Sketcher.Constraint("Vertical", 3))
sketch6.addConstraint(Sketcher.Constraint("Horizontal", 4))
sketch6.addConstraint(Sketcher.Constraint("Vertical", 5))
sketch6.addConstraint(Sketcher.Constraint("Horizontal", 6))
sketch6.addConstraint(Sketcher.Constraint("Vertical", 7))
sketch6.addConstraint(Sketcher.Constraint("Horizontal", 8))
sketch6.addConstraint(Sketcher.Constraint("Vertical", 9))
sketch6.addConstraint(Sketcher.Constraint("Horizontal", 10))
sketch6.addConstraint(Sketcher.Constraint("Vertical", 11))
sketch6.addConstraint(Sketcher.Constraint("Horizontal", 12))
sketch6.addConstraint(Sketcher.Constraint("Vertical", 13))
sketch6.addConstraint(Sketcher.Constraint("Horizontal", 14))
sketch6.addConstraint(Sketcher.Constraint("Vertical", 15))
sketch6.addConstraint(Sketcher.Constraint("Horizontal", 16))
sketch6.addConstraint(Sketcher.Constraint("Vertical", 17))
sketch6.addConstraint(Sketcher.Constraint("Horizontal", 18))
sketch6.addConstraint(Sketcher.Constraint("Vertical", 19))
sketch6.addConstraint(Sketcher.Constraint("Horizontal", 20))
sketch6.addConstraint(Sketcher.Constraint("Vertical", 21))
sketch6.addConstraint(Sketcher.Constraint("Horizontal", 22))
sketch6.addConstraint(Sketcher.Constraint("Vertical", 23))
sketch6.addConstraint(Sketcher.Constraint("Horizontal", 4, 2, 7, 2))
sketch6.addConstraint(Sketcher.Constraint("Horizontal", 2, 2, 9, 2))
sketch6.addConstraint(Sketcher.Constraint("Horizontal", 16, 2, 19, 2))
sketch6.addConstraint(Sketcher.Constraint("Horizontal", 14, 2, 21, 2))
sketch6.addConstraint(Sketcher.Constraint("Vertical", 1, 2, 4, 2))
sketch6.addConstraint(Sketcher.Constraint("Vertical", 7, 2, 10, 2))
sketch6.addConstraint(Sketcher.Constraint("Vertical", 13, 2, 16, 2))
sketch6.addConstraint(Sketcher.Constraint("Vertical", 19, 2, 22, 2))
sketch6.addConstraint(Sketcher.Constraint("Equal", 0, 2))
sketch6.addConstraint(Sketcher.Constraint("Equal", 6, 8))
sketch6.addConstraint(Sketcher.Constraint("Equal", 10, 12))
sketch6.addConstraint(Sketcher.Constraint("Equal", 12, 14))
sketch6.addConstraint(Sketcher.Constraint("Equal", 18, 20))
sketch6.addConstraint(Sketcher.Constraint("Equal", 22, 3))
sketch6.addConstraint(Sketcher.Constraint("Equal", 11, 13))
sketch6.addConstraint(Sketcher.Constraint("Equal", 9, 15))
sketch6.addConstraint(Sketcher.Constraint("Equal", 7, 17))
sketch6.addConstraint(Sketcher.Constraint("DistanceY", 1, 2, 1, 1, Q("0.2 in")))
sketch6.addConstraint(Sketcher.Constraint("DistanceX", 0, 2, 0, 1, Q("0.25 in")))
sketch6.addConstraint(Sketcher.Constraint("DistanceY", 5, 2, 5, 1, Q("0.45 in")))
sketch6.addConstraint(Sketcher.Constraint("DistanceX", 0, 2, -1, 1, Q("1.09375 in")))
sketch6.addConstraint(Sketcher.Constraint("DistanceX", -1, 1, 12, 2, Q("27.770671 mm")))
sketch6.addConstraint(Sketcher.Constraint("DistanceY", -1, 1, 0, 2, Q("11.453688 mm")))
sketch6.addConstraint(Sketcher.Constraint("DistanceY", 12, 2, -1, 1, Q("11.472877 mm")))
pocket5 = body.newObject("PartDesign::Pocket", "Pocket004")
pocket5.Profile = sketch6
pocket5.Length = Q("1 in")

doc.recompute()
